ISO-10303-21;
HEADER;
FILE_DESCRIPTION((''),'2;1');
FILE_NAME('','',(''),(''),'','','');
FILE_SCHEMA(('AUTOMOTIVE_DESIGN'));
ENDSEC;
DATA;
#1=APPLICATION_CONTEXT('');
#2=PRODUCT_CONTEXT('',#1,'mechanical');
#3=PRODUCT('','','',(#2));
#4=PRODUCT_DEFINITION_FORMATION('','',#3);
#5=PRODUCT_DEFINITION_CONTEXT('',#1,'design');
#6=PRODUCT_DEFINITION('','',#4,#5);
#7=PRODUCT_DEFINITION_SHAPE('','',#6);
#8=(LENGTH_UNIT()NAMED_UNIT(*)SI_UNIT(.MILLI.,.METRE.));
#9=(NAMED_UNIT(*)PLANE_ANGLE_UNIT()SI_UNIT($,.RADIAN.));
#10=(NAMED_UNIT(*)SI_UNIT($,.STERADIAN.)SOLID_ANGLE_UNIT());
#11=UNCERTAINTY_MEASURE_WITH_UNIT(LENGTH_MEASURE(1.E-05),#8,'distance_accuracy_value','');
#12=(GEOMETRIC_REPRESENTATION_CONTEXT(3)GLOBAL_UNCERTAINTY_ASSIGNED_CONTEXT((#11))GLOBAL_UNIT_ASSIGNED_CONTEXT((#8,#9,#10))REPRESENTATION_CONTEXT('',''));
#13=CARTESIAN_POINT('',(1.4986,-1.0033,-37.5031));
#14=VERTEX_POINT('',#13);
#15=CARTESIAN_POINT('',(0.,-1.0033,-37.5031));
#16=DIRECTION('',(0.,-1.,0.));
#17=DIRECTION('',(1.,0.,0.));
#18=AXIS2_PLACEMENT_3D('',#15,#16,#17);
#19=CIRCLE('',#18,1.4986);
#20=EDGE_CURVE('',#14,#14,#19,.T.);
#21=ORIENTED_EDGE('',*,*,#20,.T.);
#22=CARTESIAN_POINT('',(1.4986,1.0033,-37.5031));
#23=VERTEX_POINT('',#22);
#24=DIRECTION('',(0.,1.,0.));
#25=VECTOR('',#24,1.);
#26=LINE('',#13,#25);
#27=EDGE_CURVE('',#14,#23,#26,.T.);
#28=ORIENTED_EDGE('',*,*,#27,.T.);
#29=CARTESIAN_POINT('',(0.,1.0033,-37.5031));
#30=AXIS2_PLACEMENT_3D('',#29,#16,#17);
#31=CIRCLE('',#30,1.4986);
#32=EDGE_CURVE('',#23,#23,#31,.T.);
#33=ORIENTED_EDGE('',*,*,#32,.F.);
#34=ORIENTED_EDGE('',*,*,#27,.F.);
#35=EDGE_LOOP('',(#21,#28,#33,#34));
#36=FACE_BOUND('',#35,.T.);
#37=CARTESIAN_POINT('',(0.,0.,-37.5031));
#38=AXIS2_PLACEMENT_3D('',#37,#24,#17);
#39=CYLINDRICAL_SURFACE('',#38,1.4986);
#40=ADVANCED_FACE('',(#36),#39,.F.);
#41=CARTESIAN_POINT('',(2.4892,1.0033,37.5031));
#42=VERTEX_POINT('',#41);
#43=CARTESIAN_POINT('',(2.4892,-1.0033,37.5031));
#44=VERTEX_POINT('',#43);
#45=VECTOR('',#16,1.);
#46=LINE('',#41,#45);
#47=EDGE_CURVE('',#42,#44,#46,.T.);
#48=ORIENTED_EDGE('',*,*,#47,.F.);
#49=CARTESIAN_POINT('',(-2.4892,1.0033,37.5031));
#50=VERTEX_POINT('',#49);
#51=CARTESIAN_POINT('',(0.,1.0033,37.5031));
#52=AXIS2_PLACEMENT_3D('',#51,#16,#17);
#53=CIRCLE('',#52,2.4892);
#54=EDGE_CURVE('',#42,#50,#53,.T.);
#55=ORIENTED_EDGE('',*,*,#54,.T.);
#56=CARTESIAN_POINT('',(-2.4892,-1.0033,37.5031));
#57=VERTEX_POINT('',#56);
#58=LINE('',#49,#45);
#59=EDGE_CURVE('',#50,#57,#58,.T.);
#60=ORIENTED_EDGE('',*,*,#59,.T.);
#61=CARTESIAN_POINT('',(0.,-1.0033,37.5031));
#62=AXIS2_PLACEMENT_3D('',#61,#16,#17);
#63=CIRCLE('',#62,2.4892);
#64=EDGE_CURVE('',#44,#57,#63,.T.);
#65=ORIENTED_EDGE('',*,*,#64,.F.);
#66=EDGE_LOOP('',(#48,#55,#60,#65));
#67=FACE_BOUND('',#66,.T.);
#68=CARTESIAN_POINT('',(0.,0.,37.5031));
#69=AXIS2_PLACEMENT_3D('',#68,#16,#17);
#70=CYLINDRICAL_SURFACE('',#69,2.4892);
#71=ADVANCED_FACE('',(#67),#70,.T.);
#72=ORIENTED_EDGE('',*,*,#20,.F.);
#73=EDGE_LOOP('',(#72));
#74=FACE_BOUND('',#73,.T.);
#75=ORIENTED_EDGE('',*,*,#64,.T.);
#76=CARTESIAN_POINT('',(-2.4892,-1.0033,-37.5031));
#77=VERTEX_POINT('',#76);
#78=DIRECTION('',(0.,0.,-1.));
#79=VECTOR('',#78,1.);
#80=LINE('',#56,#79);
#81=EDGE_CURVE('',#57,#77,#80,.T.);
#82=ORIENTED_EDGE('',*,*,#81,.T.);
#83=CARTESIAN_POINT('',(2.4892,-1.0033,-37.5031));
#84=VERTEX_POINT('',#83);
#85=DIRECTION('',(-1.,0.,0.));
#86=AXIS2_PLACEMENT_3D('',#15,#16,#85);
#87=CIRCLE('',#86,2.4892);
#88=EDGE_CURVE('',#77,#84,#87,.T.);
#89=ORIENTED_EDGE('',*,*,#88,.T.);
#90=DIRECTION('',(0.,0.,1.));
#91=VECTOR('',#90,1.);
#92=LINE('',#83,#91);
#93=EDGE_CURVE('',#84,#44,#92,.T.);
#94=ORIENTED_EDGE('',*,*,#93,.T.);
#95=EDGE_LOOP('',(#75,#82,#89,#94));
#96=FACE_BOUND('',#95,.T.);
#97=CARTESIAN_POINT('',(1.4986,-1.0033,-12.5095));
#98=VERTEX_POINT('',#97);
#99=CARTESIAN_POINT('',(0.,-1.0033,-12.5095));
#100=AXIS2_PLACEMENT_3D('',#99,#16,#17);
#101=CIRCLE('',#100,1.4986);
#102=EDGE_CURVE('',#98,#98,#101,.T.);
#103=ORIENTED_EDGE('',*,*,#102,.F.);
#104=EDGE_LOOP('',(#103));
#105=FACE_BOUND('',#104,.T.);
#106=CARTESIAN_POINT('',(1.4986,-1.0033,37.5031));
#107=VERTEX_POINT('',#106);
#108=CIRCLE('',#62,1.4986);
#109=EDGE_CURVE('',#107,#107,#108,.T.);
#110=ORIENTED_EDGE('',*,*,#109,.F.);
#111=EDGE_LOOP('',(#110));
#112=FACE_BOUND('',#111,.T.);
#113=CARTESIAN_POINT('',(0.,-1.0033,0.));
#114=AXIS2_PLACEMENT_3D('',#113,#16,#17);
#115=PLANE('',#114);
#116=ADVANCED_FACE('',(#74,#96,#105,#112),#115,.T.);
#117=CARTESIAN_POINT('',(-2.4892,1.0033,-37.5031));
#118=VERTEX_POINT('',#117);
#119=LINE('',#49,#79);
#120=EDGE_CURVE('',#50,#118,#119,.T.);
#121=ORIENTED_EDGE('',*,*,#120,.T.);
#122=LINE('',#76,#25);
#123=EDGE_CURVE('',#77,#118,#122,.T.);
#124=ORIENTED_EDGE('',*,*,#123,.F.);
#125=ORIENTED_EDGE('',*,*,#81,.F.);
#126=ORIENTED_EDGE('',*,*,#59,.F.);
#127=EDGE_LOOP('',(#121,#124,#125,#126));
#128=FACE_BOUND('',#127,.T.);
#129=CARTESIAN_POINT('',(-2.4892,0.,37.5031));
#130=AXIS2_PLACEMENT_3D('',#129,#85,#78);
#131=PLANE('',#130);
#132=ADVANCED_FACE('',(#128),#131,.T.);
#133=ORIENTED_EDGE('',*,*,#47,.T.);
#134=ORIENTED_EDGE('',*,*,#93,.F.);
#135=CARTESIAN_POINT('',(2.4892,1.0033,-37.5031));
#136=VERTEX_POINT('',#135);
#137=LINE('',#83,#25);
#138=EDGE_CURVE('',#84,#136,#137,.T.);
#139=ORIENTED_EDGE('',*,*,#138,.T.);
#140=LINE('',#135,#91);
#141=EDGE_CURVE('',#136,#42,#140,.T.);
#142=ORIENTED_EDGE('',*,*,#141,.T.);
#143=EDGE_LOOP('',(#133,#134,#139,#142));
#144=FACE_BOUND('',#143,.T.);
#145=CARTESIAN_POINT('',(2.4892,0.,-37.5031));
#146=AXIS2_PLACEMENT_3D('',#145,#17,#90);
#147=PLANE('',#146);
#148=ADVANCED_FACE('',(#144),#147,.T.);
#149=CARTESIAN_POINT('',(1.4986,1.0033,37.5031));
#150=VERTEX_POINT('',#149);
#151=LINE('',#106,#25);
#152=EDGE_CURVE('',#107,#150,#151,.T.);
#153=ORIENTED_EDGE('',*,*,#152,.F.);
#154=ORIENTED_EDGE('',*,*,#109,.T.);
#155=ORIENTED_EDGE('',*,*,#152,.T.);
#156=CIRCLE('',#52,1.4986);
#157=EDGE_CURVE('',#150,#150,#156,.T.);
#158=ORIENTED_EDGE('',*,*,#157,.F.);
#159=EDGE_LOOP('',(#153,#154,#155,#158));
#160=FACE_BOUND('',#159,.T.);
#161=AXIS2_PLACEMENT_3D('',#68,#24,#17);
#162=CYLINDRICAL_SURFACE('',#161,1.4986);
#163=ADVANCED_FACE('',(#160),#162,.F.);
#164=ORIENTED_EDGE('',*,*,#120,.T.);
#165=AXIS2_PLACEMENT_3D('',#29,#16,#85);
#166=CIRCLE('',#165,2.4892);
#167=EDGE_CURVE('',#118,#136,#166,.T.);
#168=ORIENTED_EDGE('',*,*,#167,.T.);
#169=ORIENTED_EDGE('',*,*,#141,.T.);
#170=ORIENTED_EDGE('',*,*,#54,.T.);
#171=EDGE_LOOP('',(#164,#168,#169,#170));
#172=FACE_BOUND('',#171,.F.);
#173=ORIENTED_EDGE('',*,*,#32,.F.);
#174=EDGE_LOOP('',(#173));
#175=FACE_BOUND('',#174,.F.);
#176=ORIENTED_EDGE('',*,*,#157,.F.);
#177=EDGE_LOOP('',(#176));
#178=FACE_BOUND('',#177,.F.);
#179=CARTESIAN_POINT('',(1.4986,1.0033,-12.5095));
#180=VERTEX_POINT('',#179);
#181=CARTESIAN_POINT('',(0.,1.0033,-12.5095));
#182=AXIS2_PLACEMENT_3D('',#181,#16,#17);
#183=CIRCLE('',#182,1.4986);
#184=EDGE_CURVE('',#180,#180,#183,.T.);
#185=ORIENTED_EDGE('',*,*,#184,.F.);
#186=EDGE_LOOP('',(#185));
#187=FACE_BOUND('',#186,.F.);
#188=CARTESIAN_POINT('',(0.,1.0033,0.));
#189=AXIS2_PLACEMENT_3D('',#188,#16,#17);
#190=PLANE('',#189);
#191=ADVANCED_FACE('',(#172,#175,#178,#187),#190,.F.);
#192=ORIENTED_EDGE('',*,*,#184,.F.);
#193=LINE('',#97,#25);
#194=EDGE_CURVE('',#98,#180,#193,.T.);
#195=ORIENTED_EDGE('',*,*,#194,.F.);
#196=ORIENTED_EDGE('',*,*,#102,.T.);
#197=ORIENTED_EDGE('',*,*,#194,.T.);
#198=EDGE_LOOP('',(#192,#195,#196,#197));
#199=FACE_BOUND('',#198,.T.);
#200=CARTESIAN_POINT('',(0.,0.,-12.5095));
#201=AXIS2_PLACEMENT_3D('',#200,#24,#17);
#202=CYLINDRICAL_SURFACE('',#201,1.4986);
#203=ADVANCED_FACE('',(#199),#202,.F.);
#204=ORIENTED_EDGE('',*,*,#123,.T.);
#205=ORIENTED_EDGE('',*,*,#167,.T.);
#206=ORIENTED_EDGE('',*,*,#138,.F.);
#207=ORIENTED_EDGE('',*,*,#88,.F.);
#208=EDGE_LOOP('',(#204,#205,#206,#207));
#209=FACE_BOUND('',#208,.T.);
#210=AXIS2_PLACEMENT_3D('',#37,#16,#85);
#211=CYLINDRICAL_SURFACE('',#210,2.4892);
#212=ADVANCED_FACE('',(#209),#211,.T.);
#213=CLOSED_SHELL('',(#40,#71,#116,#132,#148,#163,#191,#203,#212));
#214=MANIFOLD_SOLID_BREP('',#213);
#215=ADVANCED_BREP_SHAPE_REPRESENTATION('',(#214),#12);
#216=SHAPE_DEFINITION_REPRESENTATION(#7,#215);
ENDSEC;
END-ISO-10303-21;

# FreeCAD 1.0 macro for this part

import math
import FreeCAD as App
import Part
import Sketcher

V = App.Vector
Q = App.Units.Quantity

doc = App.newDocument("Part")
params = doc.addObject("Spreadsheet::Sheet", "Params")
for row, (alias, value) in enumerate([
    ("sketch1_diameter", "0.118 in"),
    ("sketch1_radius", "0.098 in"),
    ("sketch1_height", "2.953 in"),
    ("pad1_length", "0.079 in"),
], start=1):
    params.set(f"A{row}", alias)
    params.set(f"B{row}", "=" + value)
    params.setAlias(f"B{row}", alias)

body = doc.addObject("PartDesign::Body", "Body")

sketch1 = doc.addObject("Sketcher::SketchObject", "Sketch")
body.addObject(sketch1)
sketch1.AttachmentSupport = (doc.XZ_Plane, [""])
sketch1.MapMode = "FlatFace"
sketch1.addGeometry([
    Part.LineSegment(V(2.5, -37.5, 0), V(2.5, 37.5, 0)),
    Part.ArcOfCircle(Part.Circle(V(0, 37.5, 0), V(0, 0, 1), 2.5), math.radians(0), math.radians(180)),
    Part.LineSegment(V(-2.5, 37.5, 0), V(-2.5, -37.5, 0)),
    Part.ArcOfCircle(Part.Circle(V(0, -37.5, 0), V(0, 0, 1), 2.5), math.radians(180), math.radians(360)),
    Part.Circle(V(0, -37.5, 0), V(0, 0, 1), 1.5),
    Part.Circle(V(0, -12.5, 0), V(0, 0, 1), 1.5),
    Part.Circle(V(0, 37.5, 0), V(0, 0, 1), 1.5),
], False)
sketch1.addConstraint([
    Sketcher.Constraint("Tangent", 0, 2, 1, 1),
    Sketcher.Constraint("Tangent", 1, 2, 2, 1),
    Sketcher.Constraint("Tangent", 2, 2, 3, 1),
    Sketcher.Constraint("Tangent", 3, 2, 0, 1),
    Sketcher.Constraint("Vertical", 0),
    Sketcher.Constraint("Vertical", 2),
    Sketcher.Constraint("Coincident", 4, 3, 3, 3),
    Sketcher.Constraint("Coincident", 6, 3, 1, 3),
    Sketcher.Constraint("Equal", 4, 5),
    Sketcher.Constraint("Equal", 5, 6),
    Sketcher.Constraint("Symmetric", 1, 3, 3, 3, -1, 1),
    Sketcher.Constraint("PointOnObject", 5, 3, -2),
    Sketcher.Constraint("Diameter", 4, Q("0.118 in")),
    Sketcher.Constraint("Radius", 1, Q("0.098 in")),
    Sketcher.Constraint("DistanceY", 0, 1, 0, 2, Q("2.953 in")),
    Sketcher.Constraint("DistanceY", 3, 3, 5, 3, Q("0.984 in")),
])
sketch1.setExpression("Constraints[12]", "Params.sketch1_diameter")
sketch1.setExpression("Constraints[13]", "Params.sketch1_radius")
sketch1.setExpression("Constraints[14]", "Params.sketch1_height")
pad1 = doc.addObject("PartDesign::Pad", "Pad")
body.addObject(pad1)
pad1.Profile = sketch1
pad1.setExpression("Length", "Params.pad1_length")
pad1.Midplane = True

doc.recompute()
